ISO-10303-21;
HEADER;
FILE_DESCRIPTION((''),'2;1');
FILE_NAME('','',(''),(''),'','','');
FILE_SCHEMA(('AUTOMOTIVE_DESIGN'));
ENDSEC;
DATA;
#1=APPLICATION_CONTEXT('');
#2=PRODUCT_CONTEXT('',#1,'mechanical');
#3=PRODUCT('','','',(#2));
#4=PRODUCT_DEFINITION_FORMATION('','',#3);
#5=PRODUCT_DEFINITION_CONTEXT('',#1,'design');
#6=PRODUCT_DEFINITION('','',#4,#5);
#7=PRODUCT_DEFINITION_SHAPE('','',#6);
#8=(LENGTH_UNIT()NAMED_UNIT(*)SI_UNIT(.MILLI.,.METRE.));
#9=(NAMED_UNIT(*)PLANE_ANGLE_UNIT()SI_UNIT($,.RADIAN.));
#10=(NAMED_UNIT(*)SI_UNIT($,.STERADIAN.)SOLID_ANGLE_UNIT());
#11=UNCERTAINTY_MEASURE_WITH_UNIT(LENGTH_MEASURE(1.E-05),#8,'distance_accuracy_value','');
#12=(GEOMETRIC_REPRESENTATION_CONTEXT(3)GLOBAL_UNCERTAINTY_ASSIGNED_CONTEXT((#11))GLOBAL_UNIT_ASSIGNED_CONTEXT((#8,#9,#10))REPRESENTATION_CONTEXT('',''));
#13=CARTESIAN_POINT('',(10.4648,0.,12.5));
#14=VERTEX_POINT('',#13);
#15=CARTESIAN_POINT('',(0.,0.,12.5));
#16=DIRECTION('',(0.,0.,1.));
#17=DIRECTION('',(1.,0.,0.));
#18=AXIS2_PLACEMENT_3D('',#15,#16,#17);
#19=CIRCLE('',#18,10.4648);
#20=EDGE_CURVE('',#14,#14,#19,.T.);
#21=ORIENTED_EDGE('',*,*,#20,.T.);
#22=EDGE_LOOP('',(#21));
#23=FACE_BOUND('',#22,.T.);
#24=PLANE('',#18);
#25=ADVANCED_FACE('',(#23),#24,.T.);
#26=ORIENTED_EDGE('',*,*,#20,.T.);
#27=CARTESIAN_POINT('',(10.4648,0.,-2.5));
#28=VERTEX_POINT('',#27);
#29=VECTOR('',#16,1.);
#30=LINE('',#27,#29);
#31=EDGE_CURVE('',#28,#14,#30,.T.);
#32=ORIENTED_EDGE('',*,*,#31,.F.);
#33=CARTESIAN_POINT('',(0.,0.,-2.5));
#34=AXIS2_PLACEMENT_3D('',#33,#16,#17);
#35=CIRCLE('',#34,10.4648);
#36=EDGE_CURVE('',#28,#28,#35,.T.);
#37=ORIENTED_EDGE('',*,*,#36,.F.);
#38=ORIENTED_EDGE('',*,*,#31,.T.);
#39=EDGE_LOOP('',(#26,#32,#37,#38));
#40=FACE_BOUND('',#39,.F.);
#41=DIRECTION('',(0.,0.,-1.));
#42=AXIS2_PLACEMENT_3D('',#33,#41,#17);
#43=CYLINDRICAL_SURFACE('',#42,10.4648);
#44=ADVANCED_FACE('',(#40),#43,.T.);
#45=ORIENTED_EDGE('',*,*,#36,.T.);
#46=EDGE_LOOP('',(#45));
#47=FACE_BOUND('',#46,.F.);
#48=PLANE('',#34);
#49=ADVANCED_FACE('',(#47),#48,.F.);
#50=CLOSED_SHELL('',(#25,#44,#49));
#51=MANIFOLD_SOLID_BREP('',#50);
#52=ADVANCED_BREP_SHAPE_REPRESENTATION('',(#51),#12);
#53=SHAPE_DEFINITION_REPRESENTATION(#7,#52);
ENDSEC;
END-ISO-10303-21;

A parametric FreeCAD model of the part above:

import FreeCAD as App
import Part
import Sketcher
from FreeCAD import Vector

doc = App.newDocument("Part")
body = doc.addObject("PartDesign::Body", "Body")

sketch1 = body.newObject("Sketcher::SketchObject", "Sketch")
sketch1.AttachmentSupport = (doc.getObject("XY_Plane"), [""])
sketch1.MapMode = "FlatFace"
sketch1.AttachmentOffset = App.Placement(Vector(0, 0, -2.5), App.Rotation())
sketch1.addGeometry(Part.Circle(Vector(0, 0, 0), Vector(0, 0, 1), 10.4648), False)
sketch1.addConstraint([
    Sketcher.Constraint("Coincident", 0, 3, -1, 1),
    Sketcher.Constraint("Diameter", 0, 20.9296),
])
pad1 = body.newObject("PartDesign::Pad", "Pad")
pad1.Profile = sketch1
pad1.Length = 15

doc.recompute()
